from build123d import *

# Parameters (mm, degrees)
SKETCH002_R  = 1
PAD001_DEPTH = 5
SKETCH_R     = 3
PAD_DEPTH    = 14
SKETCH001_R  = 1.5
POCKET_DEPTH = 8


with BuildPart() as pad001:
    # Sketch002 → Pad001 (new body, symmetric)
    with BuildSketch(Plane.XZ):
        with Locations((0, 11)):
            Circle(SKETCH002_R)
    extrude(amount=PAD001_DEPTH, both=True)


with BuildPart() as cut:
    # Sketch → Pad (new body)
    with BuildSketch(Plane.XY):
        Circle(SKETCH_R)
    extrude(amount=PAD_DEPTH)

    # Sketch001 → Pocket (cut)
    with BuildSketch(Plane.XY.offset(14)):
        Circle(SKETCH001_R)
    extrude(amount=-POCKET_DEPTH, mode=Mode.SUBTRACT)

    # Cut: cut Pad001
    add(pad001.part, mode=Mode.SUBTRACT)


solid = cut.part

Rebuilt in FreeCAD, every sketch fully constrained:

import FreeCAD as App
import Part
import Sketcher

V = App.Vector

doc = App.newDocument("Part")
body = doc.addObject("PartDesign::Body", "Body")

sketch1 = doc.addObject("Sketcher::SketchObject", "Sketch")
body.addObject(sketch1)
sketch1.AttachmentSupport = (doc.XZ_Plane, [""])
sketch1.MapMode = "FlatFace"
sketch1.addGeometry(Part.Circle(V(0, 11, 0), V(0, 0, 1), 1), False)
sketch1.addConstraint([
    Sketcher.Constraint("PointOnObject", 0, 3, -2),
    Sketcher.Constraint("Diameter", 0, 2.0),
    Sketcher.Constraint("DistanceY", -1, 1, 0, 3, 11.0),
])
pad1 = doc.addObject("PartDesign::Pad", "Pad")
body.addObject(pad1)
pad1.Profile = sketch1
pad1.Length = 10
pad1.Midplane = True
body2 = doc.addObject("PartDesign::Body", "Body001")

sketch2 = doc.addObject("Sketcher::SketchObject", "Sketch001")
body2.addObject(sketch2)
sketch2.AttachmentSupport = (doc.getObject("XY_Plane001"), [""])
sketch2.MapMode = "FlatFace"
sketch2.addGeometry(Part.Circle(V(0, 0, 0), V(0, 0, 1), 3), False)
sketch2.addConstraint([
    Sketcher.Constraint("Coincident", 0, 3, -1, 1),
    Sketcher.Constraint("Diameter", 0, 6.0),
])
pad2 = doc.addObject("PartDesign::Pad", "Pad001")
body2.addObject(pad2)
pad2.Profile = sketch2
pad2.Length = 14

sketch3 = doc.addObject("Sketcher::SketchObject", "Sketch002")
body2.addObject(sketch3)
sketch3.AttachmentSupport = (doc.getObject("XY_Plane001"), [""])
sketch3.MapMode = "FlatFace"
sketch3.AttachmentOffset = App.Placement(V(0, 0, 14), App.Rotation())
sketch3.addGeometry(Part.Circle(V(0, 0, 0), V(0, 0, 1), 1.5), False)
sketch3.addConstraint([
    Sketcher.Constraint("Coincident", 0, 3, -1, 1),
    Sketcher.Constraint("Diameter", 0, 3.0),
])
pocket1 = doc.addObject("PartDesign::Pocket", "Pocket")
body2.addObject(pocket1)
pocket1.Profile = sketch3
pocket1.Length = 8
doc.recompute()

boolean = doc.addObject("PartDesign::Boolean", "Boolean")
body2.addObject(boolean)
boolean.Type = "Cut"
boolean.addObjects([body])

doc.recompute()
